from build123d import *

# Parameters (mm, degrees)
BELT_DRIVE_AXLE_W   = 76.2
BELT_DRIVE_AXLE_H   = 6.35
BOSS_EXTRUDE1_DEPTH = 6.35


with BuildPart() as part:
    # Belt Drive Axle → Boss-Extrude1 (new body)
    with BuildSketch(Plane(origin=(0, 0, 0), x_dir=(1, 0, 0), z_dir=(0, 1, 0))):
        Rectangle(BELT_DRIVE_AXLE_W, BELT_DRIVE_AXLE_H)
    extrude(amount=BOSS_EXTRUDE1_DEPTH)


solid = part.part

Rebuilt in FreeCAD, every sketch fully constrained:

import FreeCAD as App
import Part
import Sketcher

V = App.Vector
Q = App.Units.Quantity

doc = App.newDocument("Part")
body = doc.addObject("PartDesign::Body", "Body")

sketch1 = doc.addObject("Sketcher::SketchObject", "Sketch")
body.addObject(sketch1)
sketch1.AttachmentSupport = (doc.XZ_Plane, [""])
sketch1.MapMode = "FlatFace"
sketch1.addGeometry(Part.LineSegment(V(-38.1, -3.175, 0), V(-38.1, 3.175, 0)), False)
sketch1.addGeometry(Part.LineSegment(V(-38.1, 3.175, 0), V(38.1, 3.175, 0)), False)
sketch1.addGeometry(Part.LineSegment(V(38.1, 3.175, 0), V(38.1, -3.175, 0)), False)
sketch1.addGeometry(Part.LineSegment(V(38.1, -3.175, 0), V(-38.1, -3.175, 0)), False)
sketch1.addConstraint(Sketcher.Constraint("Coincident", 0, 2, 1, 1))
sketch1.addConstraint(Sketcher.Constraint("Coincident", 1, 2, 2, 1))
sketch1.addConstraint(Sketcher.Constraint("Coincident", 2, 2, 3, 1))
sketch1.addConstraint(Sketcher.Constraint("Coincident", 3, 2, 0, 1))
sketch1.addConstraint(Sketcher.Constraint("Vertical", 0))
sketch1.addConstraint(Sketcher.Constraint("Horizontal", 1))
sketch1.addConstraint(Sketcher.Constraint("Vertical", 2))
sketch1.addConstraint(Sketcher.Constraint("Horizontal", 3))
sketch1.addConstraint(Sketcher.Constraint("Symmetric", 0, 2, 2, 2, -1, 1))
sketch1.addConstraint(Sketcher.Constraint("DistanceX", 1, 1, 1, 2, Q("3 in")))
sketch1.addConstraint(Sketcher.Constraint("DistanceY", 0, 1, 0, 2, Q("0.25 in")))
pad1 = doc.addObject("PartDesign::Pad", "Pad")
body.addObject(pad1)
pad1.Profile = sketch1
pad1.Length = Q("0.25 in")
pad1.Reversed = True

doc.recompute()
